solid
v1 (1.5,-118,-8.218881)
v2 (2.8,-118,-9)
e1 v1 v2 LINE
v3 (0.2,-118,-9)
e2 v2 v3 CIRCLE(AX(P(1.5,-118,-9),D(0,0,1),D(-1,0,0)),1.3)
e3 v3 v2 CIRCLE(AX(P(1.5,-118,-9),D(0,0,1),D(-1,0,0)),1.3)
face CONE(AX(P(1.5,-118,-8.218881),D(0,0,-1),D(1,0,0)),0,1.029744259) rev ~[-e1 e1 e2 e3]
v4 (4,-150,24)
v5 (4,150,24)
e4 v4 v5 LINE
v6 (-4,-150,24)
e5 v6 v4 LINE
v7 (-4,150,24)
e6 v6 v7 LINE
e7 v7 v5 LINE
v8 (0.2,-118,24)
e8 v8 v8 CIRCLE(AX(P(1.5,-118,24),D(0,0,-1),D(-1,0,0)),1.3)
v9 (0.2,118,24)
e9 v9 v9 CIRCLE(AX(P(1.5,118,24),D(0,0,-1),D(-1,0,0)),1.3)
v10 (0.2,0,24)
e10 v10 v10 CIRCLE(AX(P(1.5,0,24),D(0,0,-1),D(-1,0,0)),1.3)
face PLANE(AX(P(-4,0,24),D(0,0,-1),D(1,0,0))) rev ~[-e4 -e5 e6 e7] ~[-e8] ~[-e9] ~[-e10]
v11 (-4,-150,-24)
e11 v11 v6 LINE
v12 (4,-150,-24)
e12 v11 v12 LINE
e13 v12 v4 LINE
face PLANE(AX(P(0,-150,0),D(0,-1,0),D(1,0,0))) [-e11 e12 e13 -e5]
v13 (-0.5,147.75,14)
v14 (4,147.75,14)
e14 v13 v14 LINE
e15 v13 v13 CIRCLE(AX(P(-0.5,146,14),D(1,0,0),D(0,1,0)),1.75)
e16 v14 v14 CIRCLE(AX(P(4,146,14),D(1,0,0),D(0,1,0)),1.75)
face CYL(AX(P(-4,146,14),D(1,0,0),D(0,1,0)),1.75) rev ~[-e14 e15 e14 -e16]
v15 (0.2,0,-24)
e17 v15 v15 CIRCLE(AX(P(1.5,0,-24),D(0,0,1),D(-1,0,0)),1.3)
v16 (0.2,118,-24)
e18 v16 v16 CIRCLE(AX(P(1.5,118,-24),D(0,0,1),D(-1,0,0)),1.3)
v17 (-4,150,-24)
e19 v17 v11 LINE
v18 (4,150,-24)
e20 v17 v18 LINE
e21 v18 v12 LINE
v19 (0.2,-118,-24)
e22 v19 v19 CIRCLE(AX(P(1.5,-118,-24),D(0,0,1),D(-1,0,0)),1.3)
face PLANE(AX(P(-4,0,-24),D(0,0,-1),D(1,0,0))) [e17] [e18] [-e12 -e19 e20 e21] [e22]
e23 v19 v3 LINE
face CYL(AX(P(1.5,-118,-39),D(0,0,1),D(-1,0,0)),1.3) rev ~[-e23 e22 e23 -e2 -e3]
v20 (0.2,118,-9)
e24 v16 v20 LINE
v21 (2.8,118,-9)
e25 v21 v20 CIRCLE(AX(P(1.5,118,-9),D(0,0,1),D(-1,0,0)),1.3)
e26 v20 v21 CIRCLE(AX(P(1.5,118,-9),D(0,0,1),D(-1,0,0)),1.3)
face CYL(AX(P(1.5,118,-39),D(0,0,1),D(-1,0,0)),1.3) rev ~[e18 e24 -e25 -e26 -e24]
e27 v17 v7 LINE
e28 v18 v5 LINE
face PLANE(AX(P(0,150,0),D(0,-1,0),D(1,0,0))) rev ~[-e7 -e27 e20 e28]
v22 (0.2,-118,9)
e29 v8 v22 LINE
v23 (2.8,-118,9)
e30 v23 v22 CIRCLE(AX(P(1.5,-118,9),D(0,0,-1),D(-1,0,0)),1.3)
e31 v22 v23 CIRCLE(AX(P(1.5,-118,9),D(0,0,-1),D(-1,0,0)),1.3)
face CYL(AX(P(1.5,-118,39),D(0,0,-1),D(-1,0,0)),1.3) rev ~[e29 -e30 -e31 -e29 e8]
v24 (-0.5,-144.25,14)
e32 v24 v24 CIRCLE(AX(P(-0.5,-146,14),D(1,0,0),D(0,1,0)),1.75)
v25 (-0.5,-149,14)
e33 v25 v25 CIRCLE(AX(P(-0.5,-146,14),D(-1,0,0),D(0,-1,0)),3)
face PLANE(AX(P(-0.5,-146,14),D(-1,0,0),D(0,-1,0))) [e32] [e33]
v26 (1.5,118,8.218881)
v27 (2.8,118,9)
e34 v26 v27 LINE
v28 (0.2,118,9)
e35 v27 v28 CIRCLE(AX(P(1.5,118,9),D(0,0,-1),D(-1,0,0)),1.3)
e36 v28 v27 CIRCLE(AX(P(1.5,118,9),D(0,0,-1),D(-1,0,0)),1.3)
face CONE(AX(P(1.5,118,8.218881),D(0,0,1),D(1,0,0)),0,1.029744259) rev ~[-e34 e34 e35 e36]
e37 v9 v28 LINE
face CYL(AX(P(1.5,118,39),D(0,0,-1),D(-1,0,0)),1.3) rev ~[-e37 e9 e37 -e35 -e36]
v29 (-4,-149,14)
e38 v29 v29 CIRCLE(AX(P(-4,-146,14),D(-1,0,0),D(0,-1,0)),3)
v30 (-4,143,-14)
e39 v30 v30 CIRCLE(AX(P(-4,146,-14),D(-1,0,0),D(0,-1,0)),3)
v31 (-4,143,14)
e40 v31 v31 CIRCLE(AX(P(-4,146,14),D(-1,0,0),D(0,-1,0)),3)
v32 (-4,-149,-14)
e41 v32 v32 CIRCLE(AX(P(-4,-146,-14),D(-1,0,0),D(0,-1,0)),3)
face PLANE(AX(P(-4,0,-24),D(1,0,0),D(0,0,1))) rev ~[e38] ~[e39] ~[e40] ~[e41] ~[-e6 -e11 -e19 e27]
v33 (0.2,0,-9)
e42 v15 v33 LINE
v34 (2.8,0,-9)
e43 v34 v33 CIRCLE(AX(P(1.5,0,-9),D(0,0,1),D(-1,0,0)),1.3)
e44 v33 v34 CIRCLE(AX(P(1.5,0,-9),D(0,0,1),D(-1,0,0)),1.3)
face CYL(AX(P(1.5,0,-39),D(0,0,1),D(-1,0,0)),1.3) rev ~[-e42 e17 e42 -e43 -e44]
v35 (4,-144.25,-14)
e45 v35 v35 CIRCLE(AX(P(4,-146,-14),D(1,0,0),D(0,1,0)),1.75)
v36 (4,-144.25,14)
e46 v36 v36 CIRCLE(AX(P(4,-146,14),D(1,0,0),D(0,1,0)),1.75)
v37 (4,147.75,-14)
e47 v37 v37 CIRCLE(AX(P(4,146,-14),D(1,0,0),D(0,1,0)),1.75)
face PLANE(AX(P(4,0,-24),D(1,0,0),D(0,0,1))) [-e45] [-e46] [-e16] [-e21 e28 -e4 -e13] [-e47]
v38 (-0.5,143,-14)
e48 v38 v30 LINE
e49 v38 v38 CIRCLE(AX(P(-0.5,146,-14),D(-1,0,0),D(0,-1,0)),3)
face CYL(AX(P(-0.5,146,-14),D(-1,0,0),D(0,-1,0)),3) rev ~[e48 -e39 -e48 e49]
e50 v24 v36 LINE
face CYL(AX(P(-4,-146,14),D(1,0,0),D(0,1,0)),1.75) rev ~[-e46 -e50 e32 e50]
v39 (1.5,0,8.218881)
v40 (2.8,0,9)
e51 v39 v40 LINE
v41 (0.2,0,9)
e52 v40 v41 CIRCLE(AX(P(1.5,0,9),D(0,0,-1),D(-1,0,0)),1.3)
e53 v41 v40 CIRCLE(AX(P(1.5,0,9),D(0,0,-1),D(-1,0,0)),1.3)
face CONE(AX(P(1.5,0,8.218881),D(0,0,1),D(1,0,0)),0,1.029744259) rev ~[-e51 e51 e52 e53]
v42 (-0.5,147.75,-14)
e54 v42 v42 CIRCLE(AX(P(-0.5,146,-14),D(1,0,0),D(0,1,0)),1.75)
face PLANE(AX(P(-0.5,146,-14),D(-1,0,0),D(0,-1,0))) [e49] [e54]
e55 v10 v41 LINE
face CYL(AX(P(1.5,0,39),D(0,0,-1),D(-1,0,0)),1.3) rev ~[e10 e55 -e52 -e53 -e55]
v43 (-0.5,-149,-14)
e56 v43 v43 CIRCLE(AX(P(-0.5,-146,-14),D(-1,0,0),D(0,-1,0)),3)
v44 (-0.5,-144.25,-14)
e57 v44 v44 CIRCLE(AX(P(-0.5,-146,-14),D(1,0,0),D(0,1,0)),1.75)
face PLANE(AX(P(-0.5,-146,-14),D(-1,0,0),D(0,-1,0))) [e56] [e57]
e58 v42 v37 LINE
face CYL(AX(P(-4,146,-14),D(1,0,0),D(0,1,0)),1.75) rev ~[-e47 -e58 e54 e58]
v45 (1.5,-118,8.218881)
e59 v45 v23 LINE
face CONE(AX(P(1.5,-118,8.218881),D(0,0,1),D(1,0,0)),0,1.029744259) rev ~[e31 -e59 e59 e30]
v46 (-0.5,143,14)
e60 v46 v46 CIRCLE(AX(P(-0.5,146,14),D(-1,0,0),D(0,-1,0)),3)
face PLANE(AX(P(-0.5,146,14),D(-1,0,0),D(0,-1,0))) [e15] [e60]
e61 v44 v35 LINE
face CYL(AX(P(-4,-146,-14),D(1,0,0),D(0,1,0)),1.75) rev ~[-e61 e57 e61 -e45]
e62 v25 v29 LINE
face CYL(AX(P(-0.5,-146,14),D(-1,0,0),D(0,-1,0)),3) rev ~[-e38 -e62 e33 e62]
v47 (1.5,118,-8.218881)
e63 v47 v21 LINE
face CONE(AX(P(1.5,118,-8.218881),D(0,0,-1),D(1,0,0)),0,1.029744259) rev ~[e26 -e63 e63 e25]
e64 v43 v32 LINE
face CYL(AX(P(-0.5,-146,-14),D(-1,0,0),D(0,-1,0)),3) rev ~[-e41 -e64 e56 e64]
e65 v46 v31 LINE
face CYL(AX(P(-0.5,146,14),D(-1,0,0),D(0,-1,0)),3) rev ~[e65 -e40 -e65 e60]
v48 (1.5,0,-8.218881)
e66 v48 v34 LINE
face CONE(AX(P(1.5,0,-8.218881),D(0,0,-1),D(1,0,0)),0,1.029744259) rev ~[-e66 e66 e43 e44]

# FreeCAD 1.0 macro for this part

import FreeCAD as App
import Part
import Sketcher
from FreeCAD import Vector

doc = App.newDocument("Part")
params = doc.addObject("Spreadsheet::Sheet", "Params")
for row, (alias, value) in enumerate([
    ("sketch1_width", "8 mm"),
    ("sketch1_height", "48 mm"),
    ("pad1_length", "300 mm"),
    ("sketch2_diameter", "2.6 mm"),
    ("hole_diameter", "2.6 mm"),
    ("hole_depth", "15 mm"),
    ("sketch3_diameter", "2.6 mm"),
    ("hole2_diameter", "2.6 mm"),
    ("hole2_depth", "15 mm"),
    ("sketch4_diameter", "3.5 mm"),
    ("hole3_diameter", "3.5 mm"),
    ("hole3_cbore_diameter", "6 mm"),
    ("hole3_cbore_depth", "3.5 mm"),
], start=1):
    params.set(f"A{row}", alias)
    params.set(f"B{row}", "=" + value)
    params.setAlias(f"B{row}", alias)

body = doc.addObject("PartDesign::Body", "Body")

# Sketch on XZ plane
sketch1 = body.newObject("Sketcher::SketchObject", "Sketch")
sketch1.AttachmentSupport = (doc.getObject("XZ_Plane"), [""])
sketch1.MapMode = "FlatFace"
sketch1.addGeometry([
    Part.LineSegment(Vector(-4, 24, 0), Vector(-4, -24, 0)),
    Part.LineSegment(Vector(-4, -24, 0), Vector(4, -24, 0)),
    Part.LineSegment(Vector(4, -24, 0), Vector(4, 24, 0)),
    Part.LineSegment(Vector(4, 24, 0), Vector(-4, 24, 0)),
], False)
sketch1.addConstraint([
    Sketcher.Constraint("Coincident", 0, 2, 1, 1),
    Sketcher.Constraint("Coincident", 1, 2, 2, 1),
    Sketcher.Constraint("Coincident", 2, 2, 3, 1),
    Sketcher.Constraint("Coincident", 3, 2, 0, 1),
    Sketcher.Constraint("Vertical", 0),
    Sketcher.Constraint("Horizontal", 1),
    Sketcher.Constraint("Vertical", 2),
    Sketcher.Constraint("Horizontal", 3),
    Sketcher.Constraint("Symmetric", 0, 2, 2, 2, -1, 1),
    Sketcher.Constraint("DistanceX", 1, 1, 1, 2, 8.0),
    Sketcher.Constraint("DistanceY", 0, 2, 0, 1, 48.0),
])
sketch1.setExpression("Constraints[9]", "Params.sketch1_width")
sketch1.setExpression("Constraints[10]", "Params.sketch1_height")
pad1 = body.newObject("PartDesign::Pad", "Pad")
pad1.Profile = sketch1
pad1.setExpression("Length", "Params.pad1_length")
pad1.Midplane = True

# Sketch on XY plane
sketch2 = body.newObject("Sketcher::SketchObject", "Sketch001")
sketch2.AttachmentSupport = (doc.getObject("XY_Plane"), [""])
sketch2.MapMode = "FlatFace"
sketch2.AttachmentOffset = App.Placement(Vector(0, 0, -24), App.Rotation())
sketch2.addGeometry([
    Part.Circle(Vector(1.5, 118, 0), Vector(0, 0, 1), 1.3),
    Part.Circle(Vector(1.5, 0, 0), Vector(0, 0, 1), 1.3),
    Part.Circle(Vector(1.5, -118, 0), Vector(0, 0, 1), 1.3),
], False)
sketch2.addConstraint([
    Sketcher.Constraint("Equal", 0, 1),
    Sketcher.Constraint("Equal", 1, 2),
    Sketcher.Constraint("Symmetric", 0, 3, 2, 3, -1),
    Sketcher.Constraint("PointOnObject", 1, 3, -1),
    Sketcher.Constraint("Vertical", 0, 3, 1, 3),
    Sketcher.Constraint("Diameter", 0, 2.6),
    Sketcher.Constraint("DistanceY", -1, 1, 0, 3, 118.0),
    Sketcher.Constraint("DistanceX", -1, 1, 0, 3, 1.5),
])
sketch2.setExpression("Constraints[5]", "Params.sketch2_diameter")
doc.recompute()
hole = body.newObject("PartDesign::Hole", "Hole")
hole.Profile = sketch2
hole.ThreadType = "None"
hole.setExpression("Diameter", "Params.hole_diameter")
hole.DepthType = "Dimension"
hole.setExpression("Depth", "Params.hole_depth")
hole.DrillPoint = "Angled"
hole.DrillPointAngle = 118
hole.Reversed = True

# Sketch on XY plane
sketch3 = body.newObject("Sketcher::SketchObject", "Sketch002")
sketch3.AttachmentSupport = (doc.getObject("XY_Plane"), [""])
sketch3.MapMode = "FlatFace"
sketch3.AttachmentOffset = App.Placement(Vector(0, 0, 24), App.Rotation())
sketch3.addGeometry([
    Part.Circle(Vector(1.5, -118, 0), Vector(0, 0, 1), 1.3),
    Part.Circle(Vector(1.5, 0, 0), Vector(0, 0, 1), 1.3),
    Part.Circle(Vector(1.5, 118, 0), Vector(0, 0, 1), 1.3),
], False)
sketch3.addConstraint([
    Sketcher.Constraint("Equal", 0, 1),
    Sketcher.Constraint("Equal", 1, 2),
    Sketcher.Constraint("Symmetric", 0, 3, 2, 3, -1),
    Sketcher.Constraint("PointOnObject", 1, 3, -1),
    Sketcher.Constraint("Vertical", 0, 3, 1, 3),
    Sketcher.Constraint("Diameter", 0, 2.6),
    Sketcher.Constraint("DistanceY", 0, 3, -1, 1, 118.0),
    Sketcher.Constraint("DistanceX", -1, 1, 0, 3, 1.5),
])
sketch3.setExpression("Constraints[5]", "Params.sketch3_diameter")
doc.recompute()
hole2 = body.newObject("PartDesign::Hole", "Hole001")
hole2.Profile = sketch3
hole2.ThreadType = "None"
hole2.setExpression("Diameter", "Params.hole2_diameter")
hole2.DepthType = "Dimension"
hole2.setExpression("Depth", "Params.hole2_depth")
hole2.DrillPoint = "Angled"
hole2.DrillPointAngle = 118

# Sketch on YZ plane
sketch4 = body.newObject("Sketcher::SketchObject", "Sketch003")
sketch4.AttachmentSupport = (doc.getObject("YZ_Plane"), [""])
sketch4.MapMode = "FlatFace"
sketch4.AttachmentOffset = App.Placement(Vector(0, 0, -4), App.Rotation())
sketch4.addGeometry([
    Part.Circle(Vector(-146, 14, 0), Vector(0, 0, 1), 1.8),
    Part.Circle(Vector(-146, -14, 0), Vector(0, 0, 1), 1.8),
    Part.Circle(Vector(146, -14, 0), Vector(0, 0, 1), 1.8),
    Part.Circle(Vector(146, 14, 0), Vector(0, 0, 1), 1.8),
], False)
sketch4.addConstraint([
    Sketcher.Constraint("Equal", 0, 1),
    Sketcher.Constraint("Equal", 1, 2),
    Sketcher.Constraint("Equal", 2, 3),
    Sketcher.Constraint("Symmetric", 0, 3, 2, 3, -1, 1),
    Sketcher.Constraint("Symmetric", 1, 3, 3, 3, -1, 1),
    Sketcher.Constraint("Symmetric", 1, 3, 2, 3, -2),
    Sketcher.Constraint("Diameter", 0, 3.5),
    Sketcher.Constraint("DistanceX", 0, 3, -1, 1, 146.0),
    Sketcher.Constraint("DistanceY", -1, 1, 0, 3, 14.0),
])
sketch4.setExpression("Constraints[6]", "Params.sketch4_diameter")
doc.recompute()
hole3 = body.newObject("PartDesign::Hole", "Hole002")
hole3.Profile = sketch4
hole3.ThreadType = "None"
hole3.setExpression("Diameter", "Params.hole3_diameter")
hole3.DepthType = "ThroughAll"
hole3.HoleCutType = "Counterbore"
hole3.setExpression("HoleCutDiameter", "Params.hole3_cbore_diameter")
hole3.setExpression("HoleCutDepth", "Params.hole3_cbore_depth")
hole3.Reversed = True

doc.recompute()
